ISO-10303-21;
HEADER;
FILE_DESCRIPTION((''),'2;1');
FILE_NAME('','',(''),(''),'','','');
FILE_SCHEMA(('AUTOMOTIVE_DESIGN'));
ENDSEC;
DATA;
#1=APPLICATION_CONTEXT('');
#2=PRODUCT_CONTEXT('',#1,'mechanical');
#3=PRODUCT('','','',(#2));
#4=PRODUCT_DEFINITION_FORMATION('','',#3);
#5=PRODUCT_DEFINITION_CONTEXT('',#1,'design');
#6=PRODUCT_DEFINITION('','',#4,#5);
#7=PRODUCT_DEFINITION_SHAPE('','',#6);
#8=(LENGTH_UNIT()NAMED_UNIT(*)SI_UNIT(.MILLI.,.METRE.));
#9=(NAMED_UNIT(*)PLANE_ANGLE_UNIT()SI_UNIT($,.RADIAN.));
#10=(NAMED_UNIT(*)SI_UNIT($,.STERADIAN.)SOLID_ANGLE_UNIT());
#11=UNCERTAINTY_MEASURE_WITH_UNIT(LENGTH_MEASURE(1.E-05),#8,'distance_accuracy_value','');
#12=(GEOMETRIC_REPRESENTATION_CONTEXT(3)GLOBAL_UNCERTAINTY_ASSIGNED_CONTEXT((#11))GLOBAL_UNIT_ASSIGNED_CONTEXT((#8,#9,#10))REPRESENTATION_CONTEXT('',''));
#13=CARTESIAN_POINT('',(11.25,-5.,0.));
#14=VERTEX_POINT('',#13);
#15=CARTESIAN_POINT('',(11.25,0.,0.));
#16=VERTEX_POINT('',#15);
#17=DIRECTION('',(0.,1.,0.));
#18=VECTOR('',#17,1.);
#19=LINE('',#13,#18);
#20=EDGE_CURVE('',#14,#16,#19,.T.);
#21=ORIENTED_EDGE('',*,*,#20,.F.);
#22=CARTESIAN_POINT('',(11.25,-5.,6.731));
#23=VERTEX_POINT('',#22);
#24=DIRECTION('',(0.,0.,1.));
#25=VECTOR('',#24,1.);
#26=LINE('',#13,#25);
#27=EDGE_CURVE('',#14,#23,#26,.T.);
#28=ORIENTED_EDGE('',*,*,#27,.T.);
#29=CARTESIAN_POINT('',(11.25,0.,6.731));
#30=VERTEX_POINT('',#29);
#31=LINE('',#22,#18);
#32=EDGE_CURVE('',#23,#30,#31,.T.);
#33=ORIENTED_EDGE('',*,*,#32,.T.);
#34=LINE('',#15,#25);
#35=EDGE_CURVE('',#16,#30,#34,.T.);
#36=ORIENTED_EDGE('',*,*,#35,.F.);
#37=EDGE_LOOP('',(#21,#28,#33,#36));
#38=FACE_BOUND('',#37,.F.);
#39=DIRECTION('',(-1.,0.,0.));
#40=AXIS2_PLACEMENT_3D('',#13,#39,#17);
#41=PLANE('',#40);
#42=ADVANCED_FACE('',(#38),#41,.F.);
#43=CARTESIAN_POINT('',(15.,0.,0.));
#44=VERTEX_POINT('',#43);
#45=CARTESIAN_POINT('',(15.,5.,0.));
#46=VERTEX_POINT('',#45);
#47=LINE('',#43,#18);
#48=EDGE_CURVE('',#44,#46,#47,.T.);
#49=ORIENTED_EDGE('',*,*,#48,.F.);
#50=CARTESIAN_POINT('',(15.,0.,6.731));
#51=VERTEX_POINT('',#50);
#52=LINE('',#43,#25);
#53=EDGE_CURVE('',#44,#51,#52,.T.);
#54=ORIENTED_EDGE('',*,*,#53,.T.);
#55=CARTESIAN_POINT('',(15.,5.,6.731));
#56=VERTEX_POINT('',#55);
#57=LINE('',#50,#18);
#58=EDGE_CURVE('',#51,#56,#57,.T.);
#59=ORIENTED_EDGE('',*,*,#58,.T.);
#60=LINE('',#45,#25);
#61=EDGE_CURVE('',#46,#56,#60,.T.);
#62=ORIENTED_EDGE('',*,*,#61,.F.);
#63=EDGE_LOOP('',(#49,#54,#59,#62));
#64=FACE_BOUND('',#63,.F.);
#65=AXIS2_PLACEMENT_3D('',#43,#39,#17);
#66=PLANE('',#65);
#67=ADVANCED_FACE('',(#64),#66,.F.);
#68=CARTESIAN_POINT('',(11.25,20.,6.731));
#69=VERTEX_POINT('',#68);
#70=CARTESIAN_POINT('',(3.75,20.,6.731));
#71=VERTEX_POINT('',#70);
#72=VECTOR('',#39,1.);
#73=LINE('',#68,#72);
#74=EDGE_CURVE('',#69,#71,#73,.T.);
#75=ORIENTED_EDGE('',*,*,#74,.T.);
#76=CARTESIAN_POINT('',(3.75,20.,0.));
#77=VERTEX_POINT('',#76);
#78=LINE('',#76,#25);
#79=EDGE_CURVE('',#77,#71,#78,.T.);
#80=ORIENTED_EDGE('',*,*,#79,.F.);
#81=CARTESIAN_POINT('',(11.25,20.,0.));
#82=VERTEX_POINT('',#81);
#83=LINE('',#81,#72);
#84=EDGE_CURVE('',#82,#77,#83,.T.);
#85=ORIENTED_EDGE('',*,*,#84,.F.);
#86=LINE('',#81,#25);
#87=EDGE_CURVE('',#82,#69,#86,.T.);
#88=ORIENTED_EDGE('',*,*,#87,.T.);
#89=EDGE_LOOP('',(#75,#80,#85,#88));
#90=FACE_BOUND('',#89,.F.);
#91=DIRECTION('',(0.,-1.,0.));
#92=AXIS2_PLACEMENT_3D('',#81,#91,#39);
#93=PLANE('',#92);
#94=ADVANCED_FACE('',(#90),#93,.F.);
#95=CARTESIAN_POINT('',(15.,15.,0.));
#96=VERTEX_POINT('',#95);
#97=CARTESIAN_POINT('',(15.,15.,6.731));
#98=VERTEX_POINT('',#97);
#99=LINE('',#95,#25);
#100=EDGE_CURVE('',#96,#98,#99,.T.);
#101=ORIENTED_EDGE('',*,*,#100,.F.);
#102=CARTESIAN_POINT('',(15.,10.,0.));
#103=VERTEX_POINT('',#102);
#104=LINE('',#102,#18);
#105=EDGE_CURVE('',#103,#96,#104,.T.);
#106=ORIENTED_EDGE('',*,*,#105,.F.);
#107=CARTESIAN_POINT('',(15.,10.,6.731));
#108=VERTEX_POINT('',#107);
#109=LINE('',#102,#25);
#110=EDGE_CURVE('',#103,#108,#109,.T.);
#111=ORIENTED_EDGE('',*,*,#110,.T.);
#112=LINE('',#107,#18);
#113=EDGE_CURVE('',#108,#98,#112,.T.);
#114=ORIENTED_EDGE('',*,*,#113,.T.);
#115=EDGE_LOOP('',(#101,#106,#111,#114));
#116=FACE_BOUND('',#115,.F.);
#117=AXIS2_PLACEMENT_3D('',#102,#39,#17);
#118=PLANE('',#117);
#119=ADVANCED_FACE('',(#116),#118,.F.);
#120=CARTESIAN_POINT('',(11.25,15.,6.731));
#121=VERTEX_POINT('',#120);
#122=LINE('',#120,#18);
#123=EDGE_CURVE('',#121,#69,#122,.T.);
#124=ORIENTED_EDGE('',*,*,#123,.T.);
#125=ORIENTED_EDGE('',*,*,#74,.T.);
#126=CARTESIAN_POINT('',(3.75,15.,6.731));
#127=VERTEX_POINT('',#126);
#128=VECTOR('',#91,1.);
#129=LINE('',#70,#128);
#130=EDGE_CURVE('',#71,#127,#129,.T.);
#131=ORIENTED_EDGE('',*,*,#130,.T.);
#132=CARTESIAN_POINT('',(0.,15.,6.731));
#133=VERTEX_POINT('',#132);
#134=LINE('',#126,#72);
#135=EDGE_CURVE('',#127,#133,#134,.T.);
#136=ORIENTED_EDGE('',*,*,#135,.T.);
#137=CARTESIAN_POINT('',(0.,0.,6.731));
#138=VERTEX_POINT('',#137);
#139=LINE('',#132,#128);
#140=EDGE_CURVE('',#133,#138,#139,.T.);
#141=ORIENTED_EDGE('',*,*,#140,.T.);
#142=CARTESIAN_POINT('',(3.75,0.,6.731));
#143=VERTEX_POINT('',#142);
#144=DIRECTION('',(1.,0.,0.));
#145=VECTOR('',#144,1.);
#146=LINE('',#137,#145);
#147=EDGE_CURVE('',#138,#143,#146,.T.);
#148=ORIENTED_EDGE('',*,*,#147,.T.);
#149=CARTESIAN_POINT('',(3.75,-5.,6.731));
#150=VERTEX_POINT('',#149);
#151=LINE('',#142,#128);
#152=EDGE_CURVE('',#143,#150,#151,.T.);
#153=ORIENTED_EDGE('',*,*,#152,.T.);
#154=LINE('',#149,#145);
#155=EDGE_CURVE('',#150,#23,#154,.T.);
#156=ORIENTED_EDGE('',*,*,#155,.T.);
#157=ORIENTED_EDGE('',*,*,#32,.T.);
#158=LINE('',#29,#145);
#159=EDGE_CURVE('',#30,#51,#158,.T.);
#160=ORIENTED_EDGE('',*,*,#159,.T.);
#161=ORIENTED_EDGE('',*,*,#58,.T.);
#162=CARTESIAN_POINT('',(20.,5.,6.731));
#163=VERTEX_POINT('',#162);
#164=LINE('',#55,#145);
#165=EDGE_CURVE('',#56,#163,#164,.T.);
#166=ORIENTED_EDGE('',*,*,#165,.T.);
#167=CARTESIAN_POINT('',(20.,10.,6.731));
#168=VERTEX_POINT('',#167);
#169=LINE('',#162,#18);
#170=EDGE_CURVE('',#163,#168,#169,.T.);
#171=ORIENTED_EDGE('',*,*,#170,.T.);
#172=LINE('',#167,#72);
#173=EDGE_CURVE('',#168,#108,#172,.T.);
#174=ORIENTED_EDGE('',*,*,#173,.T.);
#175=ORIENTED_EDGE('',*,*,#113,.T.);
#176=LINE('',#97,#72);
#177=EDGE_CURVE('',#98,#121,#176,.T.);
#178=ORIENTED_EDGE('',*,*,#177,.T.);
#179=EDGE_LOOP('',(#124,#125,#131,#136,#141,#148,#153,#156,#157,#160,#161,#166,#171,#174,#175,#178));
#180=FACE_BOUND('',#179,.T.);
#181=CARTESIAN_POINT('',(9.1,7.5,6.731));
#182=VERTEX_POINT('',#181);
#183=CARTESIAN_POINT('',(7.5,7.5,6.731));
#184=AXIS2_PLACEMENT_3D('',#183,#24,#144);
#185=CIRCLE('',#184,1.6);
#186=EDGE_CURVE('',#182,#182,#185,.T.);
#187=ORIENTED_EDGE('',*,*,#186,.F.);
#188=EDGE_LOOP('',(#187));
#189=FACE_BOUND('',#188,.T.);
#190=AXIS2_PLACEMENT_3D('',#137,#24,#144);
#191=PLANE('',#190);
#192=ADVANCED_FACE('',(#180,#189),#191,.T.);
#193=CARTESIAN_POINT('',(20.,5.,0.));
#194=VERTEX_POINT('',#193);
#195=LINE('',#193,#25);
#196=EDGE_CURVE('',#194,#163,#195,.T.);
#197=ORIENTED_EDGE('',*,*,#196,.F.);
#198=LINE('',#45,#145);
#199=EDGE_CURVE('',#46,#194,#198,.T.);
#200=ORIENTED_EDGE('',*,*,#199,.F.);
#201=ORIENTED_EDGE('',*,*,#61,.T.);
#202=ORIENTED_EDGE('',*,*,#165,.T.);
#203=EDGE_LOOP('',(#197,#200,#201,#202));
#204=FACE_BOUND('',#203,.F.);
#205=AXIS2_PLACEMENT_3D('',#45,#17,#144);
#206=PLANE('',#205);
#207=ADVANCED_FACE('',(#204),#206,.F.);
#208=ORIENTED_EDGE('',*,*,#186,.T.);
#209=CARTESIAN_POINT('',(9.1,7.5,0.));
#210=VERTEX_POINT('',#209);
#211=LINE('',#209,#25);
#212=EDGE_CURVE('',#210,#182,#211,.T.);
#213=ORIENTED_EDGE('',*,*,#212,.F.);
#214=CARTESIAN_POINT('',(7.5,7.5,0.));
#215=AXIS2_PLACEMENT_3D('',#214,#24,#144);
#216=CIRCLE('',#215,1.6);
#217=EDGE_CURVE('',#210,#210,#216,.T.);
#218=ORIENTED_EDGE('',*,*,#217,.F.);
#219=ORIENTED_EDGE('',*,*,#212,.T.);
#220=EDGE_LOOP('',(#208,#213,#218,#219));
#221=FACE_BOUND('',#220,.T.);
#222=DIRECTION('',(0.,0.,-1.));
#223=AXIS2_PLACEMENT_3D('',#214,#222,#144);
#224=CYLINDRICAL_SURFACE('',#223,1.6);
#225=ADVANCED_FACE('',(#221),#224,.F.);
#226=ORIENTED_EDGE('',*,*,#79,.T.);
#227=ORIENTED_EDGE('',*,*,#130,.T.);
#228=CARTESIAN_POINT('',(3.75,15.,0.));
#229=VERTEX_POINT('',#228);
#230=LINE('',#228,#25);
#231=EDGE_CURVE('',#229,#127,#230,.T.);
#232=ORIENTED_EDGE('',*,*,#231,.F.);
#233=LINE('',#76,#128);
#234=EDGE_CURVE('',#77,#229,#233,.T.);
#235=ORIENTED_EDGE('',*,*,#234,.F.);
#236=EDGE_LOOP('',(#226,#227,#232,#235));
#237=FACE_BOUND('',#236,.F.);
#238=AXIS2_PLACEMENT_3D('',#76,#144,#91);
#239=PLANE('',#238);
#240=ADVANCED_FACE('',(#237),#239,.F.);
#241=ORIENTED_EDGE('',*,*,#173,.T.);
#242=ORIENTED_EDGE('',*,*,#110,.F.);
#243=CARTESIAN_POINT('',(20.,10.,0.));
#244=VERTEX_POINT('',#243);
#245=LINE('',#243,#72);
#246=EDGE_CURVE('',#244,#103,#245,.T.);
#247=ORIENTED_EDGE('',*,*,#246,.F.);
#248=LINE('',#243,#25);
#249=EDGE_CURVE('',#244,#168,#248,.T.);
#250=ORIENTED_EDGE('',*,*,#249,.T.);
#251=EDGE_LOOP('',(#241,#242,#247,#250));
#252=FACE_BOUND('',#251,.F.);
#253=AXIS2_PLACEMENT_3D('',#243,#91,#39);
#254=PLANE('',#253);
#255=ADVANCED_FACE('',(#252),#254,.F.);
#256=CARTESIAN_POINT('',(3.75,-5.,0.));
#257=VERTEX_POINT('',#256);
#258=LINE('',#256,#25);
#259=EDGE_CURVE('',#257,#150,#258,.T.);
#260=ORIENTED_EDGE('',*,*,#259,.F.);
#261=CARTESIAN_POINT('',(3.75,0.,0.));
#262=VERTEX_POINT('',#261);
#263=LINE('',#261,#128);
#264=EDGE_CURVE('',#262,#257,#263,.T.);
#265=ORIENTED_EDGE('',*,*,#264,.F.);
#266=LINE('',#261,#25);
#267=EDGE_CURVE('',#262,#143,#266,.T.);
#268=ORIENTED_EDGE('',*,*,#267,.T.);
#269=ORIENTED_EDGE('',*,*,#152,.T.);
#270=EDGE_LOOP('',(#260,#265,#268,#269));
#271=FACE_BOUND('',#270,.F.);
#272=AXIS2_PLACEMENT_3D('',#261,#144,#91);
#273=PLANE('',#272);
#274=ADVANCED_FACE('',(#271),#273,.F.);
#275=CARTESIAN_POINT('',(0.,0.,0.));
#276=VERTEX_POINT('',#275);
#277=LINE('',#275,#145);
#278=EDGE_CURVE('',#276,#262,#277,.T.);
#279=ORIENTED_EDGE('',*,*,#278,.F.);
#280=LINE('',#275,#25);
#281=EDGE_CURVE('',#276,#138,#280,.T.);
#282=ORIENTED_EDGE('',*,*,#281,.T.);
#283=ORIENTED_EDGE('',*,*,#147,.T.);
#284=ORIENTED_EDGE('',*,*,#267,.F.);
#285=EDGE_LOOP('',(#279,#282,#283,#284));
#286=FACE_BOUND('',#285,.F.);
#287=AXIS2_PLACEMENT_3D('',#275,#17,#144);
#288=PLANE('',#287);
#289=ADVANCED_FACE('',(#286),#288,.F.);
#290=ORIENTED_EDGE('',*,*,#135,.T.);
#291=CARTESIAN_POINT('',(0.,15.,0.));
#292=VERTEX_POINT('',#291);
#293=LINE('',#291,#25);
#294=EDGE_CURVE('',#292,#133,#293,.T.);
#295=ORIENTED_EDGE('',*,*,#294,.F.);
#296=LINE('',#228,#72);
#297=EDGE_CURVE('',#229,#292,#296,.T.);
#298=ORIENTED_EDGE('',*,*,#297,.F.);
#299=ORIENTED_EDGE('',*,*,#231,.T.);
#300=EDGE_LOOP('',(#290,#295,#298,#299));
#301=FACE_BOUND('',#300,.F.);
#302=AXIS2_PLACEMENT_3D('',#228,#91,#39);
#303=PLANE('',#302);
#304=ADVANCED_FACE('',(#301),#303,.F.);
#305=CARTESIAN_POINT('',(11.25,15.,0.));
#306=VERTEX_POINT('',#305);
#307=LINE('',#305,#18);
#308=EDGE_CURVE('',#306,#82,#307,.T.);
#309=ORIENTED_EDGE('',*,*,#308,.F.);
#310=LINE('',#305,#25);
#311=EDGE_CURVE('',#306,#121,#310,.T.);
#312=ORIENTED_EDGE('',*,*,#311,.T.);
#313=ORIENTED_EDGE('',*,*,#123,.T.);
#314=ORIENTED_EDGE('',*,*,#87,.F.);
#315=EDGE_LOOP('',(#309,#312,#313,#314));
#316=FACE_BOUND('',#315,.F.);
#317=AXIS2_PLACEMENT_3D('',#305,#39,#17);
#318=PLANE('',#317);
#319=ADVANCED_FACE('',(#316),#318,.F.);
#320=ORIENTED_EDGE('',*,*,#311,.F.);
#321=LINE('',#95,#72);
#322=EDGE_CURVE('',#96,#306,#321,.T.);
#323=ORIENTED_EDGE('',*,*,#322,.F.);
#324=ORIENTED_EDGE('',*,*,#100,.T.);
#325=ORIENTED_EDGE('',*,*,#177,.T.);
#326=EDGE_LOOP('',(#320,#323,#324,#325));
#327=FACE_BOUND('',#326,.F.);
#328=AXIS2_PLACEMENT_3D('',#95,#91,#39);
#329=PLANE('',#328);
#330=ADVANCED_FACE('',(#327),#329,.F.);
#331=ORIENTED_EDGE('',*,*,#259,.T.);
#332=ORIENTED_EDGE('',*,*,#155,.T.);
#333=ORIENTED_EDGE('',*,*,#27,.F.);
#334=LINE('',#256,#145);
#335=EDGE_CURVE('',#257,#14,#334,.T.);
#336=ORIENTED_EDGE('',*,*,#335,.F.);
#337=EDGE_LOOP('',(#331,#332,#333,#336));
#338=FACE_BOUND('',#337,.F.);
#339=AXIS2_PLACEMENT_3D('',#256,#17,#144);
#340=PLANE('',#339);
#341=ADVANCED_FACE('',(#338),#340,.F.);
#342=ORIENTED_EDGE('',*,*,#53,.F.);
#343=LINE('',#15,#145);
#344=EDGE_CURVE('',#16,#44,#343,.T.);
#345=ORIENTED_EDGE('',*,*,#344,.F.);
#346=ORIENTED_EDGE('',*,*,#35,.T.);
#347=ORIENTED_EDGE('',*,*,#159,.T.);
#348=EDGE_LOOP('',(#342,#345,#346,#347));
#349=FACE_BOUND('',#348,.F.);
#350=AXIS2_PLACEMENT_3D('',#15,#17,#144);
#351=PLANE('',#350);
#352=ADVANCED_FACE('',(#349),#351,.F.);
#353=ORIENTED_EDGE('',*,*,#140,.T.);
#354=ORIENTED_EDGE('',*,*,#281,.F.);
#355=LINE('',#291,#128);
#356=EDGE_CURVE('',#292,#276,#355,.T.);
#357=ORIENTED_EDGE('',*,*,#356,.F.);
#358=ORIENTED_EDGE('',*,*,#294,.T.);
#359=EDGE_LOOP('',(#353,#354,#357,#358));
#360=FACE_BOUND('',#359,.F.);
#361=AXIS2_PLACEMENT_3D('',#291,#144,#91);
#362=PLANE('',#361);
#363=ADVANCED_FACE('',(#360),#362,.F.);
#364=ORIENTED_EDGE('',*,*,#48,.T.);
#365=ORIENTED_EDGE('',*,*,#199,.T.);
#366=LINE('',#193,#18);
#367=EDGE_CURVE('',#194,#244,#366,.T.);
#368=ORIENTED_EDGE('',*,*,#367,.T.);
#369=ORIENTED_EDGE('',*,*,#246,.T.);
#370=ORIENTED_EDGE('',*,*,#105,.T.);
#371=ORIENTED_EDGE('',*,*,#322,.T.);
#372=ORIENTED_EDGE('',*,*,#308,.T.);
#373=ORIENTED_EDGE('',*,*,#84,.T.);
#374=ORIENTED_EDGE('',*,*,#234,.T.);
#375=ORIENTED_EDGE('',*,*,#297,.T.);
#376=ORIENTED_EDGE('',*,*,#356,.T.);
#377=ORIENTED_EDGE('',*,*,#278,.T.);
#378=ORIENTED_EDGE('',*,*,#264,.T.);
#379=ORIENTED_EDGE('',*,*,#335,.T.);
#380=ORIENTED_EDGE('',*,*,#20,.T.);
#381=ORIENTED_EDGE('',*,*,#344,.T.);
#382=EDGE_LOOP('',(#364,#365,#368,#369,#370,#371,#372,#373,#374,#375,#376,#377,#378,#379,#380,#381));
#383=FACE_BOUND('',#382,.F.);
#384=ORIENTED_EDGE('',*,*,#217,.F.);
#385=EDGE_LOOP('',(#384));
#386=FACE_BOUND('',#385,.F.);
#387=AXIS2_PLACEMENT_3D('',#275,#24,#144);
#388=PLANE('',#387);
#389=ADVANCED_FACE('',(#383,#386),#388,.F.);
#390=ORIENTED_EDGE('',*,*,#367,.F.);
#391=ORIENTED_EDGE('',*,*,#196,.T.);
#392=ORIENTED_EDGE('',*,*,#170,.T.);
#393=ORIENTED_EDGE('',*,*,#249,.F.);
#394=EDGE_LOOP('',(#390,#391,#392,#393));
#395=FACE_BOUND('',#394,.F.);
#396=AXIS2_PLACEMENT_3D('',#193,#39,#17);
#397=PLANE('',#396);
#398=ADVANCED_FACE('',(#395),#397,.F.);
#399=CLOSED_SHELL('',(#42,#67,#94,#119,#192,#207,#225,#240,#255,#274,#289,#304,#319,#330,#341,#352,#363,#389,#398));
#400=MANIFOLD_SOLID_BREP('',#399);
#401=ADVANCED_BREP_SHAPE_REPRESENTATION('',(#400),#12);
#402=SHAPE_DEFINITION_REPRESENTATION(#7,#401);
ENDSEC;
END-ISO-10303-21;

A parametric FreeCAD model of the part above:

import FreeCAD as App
import Part
import Sketcher
from FreeCAD import Vector

doc = App.newDocument("Part")
params = doc.addObject("Spreadsheet::Sheet", "Params")
for row, (alias, value) in enumerate([
    ("sketch1_diameter", "3.2 mm"),
    ("sketch1_width", "5 mm"),
    ("sketch1_width2", "7.5 mm"),
    ("pad1_length", "6.731 mm"),
], start=1):
    params.set(f"A{row}", alias)
    params.set(f"B{row}", "=" + value)
    params.setAlias(f"B{row}", alias)

body = doc.addObject("PartDesign::Body", "Body")

sketch1 = body.newObject("Sketcher::SketchObject", "Sketch")
sketch1.AttachmentSupport = (doc.getObject("XY_Plane"), [""])
sketch1.MapMode = "FlatFace"
sketch1.addGeometry([
    Part.LineSegment(Vector(0, 15, 0), Vector(0, 0, 0)),
    Part.LineSegment(Vector(0, 0, 0), Vector(3.8, 0, 0)),
    Part.LineSegment(Vector(3.8, 0, 0), Vector(3.8, -5, 0)),
    Part.LineSegment(Vector(3.8, -5, 0), Vector(11.2, -5, 0)),
    Part.LineSegment(Vector(11.2, -5, 0), Vector(11.2, 0, 0)),
    Part.LineSegment(Vector(11.2, 0, 0), Vector(15, 0, 0)),
    Part.LineSegment(Vector(15, 0, 0), Vector(15, 5, 0)),
    Part.LineSegment(Vector(15, 5, 0), Vector(20, 5, 0)),
    Part.LineSegment(Vector(20, 5, 0), Vector(20, 10, 0)),
    Part.LineSegment(Vector(20, 10, 0), Vector(15, 10, 0)),
    Part.LineSegment(Vector(15, 10, 0), Vector(15, 15, 0)),
    Part.LineSegment(Vector(15, 15, 0), Vector(11.2, 15, 0)),
    Part.LineSegment(Vector(11.2, 15, 0), Vector(11.2, 20, 0)),
    Part.LineSegment(Vector(11.2, 20, 0), Vector(3.8, 20, 0)),
    Part.LineSegment(Vector(3.8, 20, 0), Vector(3.8, 15, 0)),
    Part.LineSegment(Vector(3.8, 15, 0), Vector(0, 15, 0)),
    Part.Circle(Vector(7.5, 7.5, 0), Vector(0, 0, 1), 1.6),
], False)
sketch1.addConstraint([
    Sketcher.Constraint("Coincident", 0, 2, 1, 1),
    Sketcher.Constraint("Coincident", 1, 2, 2, 1),
    Sketcher.Constraint("Coincident", 2, 2, 3, 1),
    Sketcher.Constraint("Coincident", 3, 2, 4, 1),
    Sketcher.Constraint("Coincident", 4, 2, 5, 1),
    Sketcher.Constraint("Coincident", 5, 2, 6, 1),
    Sketcher.Constraint("Coincident", 6, 2, 7, 1),
    Sketcher.Constraint("Coincident", 7, 2, 8, 1),
    Sketcher.Constraint("Coincident", 8, 2, 9, 1),
    Sketcher.Constraint("Coincident", 9, 2, 10, 1),
    Sketcher.Constraint("Coincident", 10, 2, 11, 1),
    Sketcher.Constraint("Coincident", 11, 2, 12, 1),
    Sketcher.Constraint("Coincident", 12, 2, 13, 1),
    Sketcher.Constraint("Coincident", 13, 2, 14, 1),
    Sketcher.Constraint("Coincident", 14, 2, 15, 1),
    Sketcher.Constraint("Coincident", 15, 2, 0, 1),
    Sketcher.Constraint("Vertical", 0),
    Sketcher.Constraint("Horizontal", 1),
    Sketcher.Constraint("Vertical", 2),
    Sketcher.Constraint("Horizontal", 3),
    Sketcher.Constraint("Vertical", 4),
    Sketcher.Constraint("Horizontal", 5),
    Sketcher.Constraint("Vertical", 6),
    Sketcher.Constraint("Horizontal", 7),
    Sketcher.Constraint("Vertical", 8),
    Sketcher.Constraint("Horizontal", 9),
    Sketcher.Constraint("Vertical", 10),
    Sketcher.Constraint("Horizontal", 11),
    Sketcher.Constraint("Vertical", 12),
    Sketcher.Constraint("Horizontal", 13),
    Sketcher.Constraint("Vertical", 14),
    Sketcher.Constraint("Horizontal", 15),
    Sketcher.Constraint("Coincident", 0, 2, -1, 1),
    Sketcher.Constraint("PointOnObject", 4, 2, -1),
    Sketcher.Constraint("Horizontal", 11, 2, 14, 2),
    Sketcher.Constraint("Vertical", 6, 2, 9, 2),
    Sketcher.Constraint("Vertical", 4, 2, 11, 2),
    Sketcher.Constraint("Vertical", 2, 2, 13, 2),
    Sketcher.Constraint("Equal", 1, 5),
    Sketcher.Constraint("Equal", 9, 2),
    Sketcher.Constraint("Equal", 4, 6),
    Sketcher.Constraint("Equal", 6, 8),
    Sketcher.Constraint("Equal", 8, 10),
    Sketcher.Constraint("Equal", 10, 12),
    Sketcher.Constraint("Diameter", 16, 3.2),
    Sketcher.Constraint("DistanceX", 7, 1, 7, 2, 5.0),
    Sketcher.Constraint("DistanceX", 3, 1, 3, 2, 7.5),
    Sketcher.Constraint("DistanceX", -1, 1, 5, 2, 15.0),
    Sketcher.Constraint("DistanceX", -1, 1, 16, 3, 7.5),
    Sketcher.Constraint("DistanceY", -1, 1, 16, 3, 7.5),
])
sketch1.setExpression("Constraints[44]", "Params.sketch1_diameter")
sketch1.setExpression("Constraints[45]", "Params.sketch1_width")
sketch1.setExpression("Constraints[46]", "Params.sketch1_width2")
pad1 = body.newObject("PartDesign::Pad", "Pad")
pad1.Profile = sketch1
pad1.setExpression("Length", "Params.pad1_length")

doc.recompute()
